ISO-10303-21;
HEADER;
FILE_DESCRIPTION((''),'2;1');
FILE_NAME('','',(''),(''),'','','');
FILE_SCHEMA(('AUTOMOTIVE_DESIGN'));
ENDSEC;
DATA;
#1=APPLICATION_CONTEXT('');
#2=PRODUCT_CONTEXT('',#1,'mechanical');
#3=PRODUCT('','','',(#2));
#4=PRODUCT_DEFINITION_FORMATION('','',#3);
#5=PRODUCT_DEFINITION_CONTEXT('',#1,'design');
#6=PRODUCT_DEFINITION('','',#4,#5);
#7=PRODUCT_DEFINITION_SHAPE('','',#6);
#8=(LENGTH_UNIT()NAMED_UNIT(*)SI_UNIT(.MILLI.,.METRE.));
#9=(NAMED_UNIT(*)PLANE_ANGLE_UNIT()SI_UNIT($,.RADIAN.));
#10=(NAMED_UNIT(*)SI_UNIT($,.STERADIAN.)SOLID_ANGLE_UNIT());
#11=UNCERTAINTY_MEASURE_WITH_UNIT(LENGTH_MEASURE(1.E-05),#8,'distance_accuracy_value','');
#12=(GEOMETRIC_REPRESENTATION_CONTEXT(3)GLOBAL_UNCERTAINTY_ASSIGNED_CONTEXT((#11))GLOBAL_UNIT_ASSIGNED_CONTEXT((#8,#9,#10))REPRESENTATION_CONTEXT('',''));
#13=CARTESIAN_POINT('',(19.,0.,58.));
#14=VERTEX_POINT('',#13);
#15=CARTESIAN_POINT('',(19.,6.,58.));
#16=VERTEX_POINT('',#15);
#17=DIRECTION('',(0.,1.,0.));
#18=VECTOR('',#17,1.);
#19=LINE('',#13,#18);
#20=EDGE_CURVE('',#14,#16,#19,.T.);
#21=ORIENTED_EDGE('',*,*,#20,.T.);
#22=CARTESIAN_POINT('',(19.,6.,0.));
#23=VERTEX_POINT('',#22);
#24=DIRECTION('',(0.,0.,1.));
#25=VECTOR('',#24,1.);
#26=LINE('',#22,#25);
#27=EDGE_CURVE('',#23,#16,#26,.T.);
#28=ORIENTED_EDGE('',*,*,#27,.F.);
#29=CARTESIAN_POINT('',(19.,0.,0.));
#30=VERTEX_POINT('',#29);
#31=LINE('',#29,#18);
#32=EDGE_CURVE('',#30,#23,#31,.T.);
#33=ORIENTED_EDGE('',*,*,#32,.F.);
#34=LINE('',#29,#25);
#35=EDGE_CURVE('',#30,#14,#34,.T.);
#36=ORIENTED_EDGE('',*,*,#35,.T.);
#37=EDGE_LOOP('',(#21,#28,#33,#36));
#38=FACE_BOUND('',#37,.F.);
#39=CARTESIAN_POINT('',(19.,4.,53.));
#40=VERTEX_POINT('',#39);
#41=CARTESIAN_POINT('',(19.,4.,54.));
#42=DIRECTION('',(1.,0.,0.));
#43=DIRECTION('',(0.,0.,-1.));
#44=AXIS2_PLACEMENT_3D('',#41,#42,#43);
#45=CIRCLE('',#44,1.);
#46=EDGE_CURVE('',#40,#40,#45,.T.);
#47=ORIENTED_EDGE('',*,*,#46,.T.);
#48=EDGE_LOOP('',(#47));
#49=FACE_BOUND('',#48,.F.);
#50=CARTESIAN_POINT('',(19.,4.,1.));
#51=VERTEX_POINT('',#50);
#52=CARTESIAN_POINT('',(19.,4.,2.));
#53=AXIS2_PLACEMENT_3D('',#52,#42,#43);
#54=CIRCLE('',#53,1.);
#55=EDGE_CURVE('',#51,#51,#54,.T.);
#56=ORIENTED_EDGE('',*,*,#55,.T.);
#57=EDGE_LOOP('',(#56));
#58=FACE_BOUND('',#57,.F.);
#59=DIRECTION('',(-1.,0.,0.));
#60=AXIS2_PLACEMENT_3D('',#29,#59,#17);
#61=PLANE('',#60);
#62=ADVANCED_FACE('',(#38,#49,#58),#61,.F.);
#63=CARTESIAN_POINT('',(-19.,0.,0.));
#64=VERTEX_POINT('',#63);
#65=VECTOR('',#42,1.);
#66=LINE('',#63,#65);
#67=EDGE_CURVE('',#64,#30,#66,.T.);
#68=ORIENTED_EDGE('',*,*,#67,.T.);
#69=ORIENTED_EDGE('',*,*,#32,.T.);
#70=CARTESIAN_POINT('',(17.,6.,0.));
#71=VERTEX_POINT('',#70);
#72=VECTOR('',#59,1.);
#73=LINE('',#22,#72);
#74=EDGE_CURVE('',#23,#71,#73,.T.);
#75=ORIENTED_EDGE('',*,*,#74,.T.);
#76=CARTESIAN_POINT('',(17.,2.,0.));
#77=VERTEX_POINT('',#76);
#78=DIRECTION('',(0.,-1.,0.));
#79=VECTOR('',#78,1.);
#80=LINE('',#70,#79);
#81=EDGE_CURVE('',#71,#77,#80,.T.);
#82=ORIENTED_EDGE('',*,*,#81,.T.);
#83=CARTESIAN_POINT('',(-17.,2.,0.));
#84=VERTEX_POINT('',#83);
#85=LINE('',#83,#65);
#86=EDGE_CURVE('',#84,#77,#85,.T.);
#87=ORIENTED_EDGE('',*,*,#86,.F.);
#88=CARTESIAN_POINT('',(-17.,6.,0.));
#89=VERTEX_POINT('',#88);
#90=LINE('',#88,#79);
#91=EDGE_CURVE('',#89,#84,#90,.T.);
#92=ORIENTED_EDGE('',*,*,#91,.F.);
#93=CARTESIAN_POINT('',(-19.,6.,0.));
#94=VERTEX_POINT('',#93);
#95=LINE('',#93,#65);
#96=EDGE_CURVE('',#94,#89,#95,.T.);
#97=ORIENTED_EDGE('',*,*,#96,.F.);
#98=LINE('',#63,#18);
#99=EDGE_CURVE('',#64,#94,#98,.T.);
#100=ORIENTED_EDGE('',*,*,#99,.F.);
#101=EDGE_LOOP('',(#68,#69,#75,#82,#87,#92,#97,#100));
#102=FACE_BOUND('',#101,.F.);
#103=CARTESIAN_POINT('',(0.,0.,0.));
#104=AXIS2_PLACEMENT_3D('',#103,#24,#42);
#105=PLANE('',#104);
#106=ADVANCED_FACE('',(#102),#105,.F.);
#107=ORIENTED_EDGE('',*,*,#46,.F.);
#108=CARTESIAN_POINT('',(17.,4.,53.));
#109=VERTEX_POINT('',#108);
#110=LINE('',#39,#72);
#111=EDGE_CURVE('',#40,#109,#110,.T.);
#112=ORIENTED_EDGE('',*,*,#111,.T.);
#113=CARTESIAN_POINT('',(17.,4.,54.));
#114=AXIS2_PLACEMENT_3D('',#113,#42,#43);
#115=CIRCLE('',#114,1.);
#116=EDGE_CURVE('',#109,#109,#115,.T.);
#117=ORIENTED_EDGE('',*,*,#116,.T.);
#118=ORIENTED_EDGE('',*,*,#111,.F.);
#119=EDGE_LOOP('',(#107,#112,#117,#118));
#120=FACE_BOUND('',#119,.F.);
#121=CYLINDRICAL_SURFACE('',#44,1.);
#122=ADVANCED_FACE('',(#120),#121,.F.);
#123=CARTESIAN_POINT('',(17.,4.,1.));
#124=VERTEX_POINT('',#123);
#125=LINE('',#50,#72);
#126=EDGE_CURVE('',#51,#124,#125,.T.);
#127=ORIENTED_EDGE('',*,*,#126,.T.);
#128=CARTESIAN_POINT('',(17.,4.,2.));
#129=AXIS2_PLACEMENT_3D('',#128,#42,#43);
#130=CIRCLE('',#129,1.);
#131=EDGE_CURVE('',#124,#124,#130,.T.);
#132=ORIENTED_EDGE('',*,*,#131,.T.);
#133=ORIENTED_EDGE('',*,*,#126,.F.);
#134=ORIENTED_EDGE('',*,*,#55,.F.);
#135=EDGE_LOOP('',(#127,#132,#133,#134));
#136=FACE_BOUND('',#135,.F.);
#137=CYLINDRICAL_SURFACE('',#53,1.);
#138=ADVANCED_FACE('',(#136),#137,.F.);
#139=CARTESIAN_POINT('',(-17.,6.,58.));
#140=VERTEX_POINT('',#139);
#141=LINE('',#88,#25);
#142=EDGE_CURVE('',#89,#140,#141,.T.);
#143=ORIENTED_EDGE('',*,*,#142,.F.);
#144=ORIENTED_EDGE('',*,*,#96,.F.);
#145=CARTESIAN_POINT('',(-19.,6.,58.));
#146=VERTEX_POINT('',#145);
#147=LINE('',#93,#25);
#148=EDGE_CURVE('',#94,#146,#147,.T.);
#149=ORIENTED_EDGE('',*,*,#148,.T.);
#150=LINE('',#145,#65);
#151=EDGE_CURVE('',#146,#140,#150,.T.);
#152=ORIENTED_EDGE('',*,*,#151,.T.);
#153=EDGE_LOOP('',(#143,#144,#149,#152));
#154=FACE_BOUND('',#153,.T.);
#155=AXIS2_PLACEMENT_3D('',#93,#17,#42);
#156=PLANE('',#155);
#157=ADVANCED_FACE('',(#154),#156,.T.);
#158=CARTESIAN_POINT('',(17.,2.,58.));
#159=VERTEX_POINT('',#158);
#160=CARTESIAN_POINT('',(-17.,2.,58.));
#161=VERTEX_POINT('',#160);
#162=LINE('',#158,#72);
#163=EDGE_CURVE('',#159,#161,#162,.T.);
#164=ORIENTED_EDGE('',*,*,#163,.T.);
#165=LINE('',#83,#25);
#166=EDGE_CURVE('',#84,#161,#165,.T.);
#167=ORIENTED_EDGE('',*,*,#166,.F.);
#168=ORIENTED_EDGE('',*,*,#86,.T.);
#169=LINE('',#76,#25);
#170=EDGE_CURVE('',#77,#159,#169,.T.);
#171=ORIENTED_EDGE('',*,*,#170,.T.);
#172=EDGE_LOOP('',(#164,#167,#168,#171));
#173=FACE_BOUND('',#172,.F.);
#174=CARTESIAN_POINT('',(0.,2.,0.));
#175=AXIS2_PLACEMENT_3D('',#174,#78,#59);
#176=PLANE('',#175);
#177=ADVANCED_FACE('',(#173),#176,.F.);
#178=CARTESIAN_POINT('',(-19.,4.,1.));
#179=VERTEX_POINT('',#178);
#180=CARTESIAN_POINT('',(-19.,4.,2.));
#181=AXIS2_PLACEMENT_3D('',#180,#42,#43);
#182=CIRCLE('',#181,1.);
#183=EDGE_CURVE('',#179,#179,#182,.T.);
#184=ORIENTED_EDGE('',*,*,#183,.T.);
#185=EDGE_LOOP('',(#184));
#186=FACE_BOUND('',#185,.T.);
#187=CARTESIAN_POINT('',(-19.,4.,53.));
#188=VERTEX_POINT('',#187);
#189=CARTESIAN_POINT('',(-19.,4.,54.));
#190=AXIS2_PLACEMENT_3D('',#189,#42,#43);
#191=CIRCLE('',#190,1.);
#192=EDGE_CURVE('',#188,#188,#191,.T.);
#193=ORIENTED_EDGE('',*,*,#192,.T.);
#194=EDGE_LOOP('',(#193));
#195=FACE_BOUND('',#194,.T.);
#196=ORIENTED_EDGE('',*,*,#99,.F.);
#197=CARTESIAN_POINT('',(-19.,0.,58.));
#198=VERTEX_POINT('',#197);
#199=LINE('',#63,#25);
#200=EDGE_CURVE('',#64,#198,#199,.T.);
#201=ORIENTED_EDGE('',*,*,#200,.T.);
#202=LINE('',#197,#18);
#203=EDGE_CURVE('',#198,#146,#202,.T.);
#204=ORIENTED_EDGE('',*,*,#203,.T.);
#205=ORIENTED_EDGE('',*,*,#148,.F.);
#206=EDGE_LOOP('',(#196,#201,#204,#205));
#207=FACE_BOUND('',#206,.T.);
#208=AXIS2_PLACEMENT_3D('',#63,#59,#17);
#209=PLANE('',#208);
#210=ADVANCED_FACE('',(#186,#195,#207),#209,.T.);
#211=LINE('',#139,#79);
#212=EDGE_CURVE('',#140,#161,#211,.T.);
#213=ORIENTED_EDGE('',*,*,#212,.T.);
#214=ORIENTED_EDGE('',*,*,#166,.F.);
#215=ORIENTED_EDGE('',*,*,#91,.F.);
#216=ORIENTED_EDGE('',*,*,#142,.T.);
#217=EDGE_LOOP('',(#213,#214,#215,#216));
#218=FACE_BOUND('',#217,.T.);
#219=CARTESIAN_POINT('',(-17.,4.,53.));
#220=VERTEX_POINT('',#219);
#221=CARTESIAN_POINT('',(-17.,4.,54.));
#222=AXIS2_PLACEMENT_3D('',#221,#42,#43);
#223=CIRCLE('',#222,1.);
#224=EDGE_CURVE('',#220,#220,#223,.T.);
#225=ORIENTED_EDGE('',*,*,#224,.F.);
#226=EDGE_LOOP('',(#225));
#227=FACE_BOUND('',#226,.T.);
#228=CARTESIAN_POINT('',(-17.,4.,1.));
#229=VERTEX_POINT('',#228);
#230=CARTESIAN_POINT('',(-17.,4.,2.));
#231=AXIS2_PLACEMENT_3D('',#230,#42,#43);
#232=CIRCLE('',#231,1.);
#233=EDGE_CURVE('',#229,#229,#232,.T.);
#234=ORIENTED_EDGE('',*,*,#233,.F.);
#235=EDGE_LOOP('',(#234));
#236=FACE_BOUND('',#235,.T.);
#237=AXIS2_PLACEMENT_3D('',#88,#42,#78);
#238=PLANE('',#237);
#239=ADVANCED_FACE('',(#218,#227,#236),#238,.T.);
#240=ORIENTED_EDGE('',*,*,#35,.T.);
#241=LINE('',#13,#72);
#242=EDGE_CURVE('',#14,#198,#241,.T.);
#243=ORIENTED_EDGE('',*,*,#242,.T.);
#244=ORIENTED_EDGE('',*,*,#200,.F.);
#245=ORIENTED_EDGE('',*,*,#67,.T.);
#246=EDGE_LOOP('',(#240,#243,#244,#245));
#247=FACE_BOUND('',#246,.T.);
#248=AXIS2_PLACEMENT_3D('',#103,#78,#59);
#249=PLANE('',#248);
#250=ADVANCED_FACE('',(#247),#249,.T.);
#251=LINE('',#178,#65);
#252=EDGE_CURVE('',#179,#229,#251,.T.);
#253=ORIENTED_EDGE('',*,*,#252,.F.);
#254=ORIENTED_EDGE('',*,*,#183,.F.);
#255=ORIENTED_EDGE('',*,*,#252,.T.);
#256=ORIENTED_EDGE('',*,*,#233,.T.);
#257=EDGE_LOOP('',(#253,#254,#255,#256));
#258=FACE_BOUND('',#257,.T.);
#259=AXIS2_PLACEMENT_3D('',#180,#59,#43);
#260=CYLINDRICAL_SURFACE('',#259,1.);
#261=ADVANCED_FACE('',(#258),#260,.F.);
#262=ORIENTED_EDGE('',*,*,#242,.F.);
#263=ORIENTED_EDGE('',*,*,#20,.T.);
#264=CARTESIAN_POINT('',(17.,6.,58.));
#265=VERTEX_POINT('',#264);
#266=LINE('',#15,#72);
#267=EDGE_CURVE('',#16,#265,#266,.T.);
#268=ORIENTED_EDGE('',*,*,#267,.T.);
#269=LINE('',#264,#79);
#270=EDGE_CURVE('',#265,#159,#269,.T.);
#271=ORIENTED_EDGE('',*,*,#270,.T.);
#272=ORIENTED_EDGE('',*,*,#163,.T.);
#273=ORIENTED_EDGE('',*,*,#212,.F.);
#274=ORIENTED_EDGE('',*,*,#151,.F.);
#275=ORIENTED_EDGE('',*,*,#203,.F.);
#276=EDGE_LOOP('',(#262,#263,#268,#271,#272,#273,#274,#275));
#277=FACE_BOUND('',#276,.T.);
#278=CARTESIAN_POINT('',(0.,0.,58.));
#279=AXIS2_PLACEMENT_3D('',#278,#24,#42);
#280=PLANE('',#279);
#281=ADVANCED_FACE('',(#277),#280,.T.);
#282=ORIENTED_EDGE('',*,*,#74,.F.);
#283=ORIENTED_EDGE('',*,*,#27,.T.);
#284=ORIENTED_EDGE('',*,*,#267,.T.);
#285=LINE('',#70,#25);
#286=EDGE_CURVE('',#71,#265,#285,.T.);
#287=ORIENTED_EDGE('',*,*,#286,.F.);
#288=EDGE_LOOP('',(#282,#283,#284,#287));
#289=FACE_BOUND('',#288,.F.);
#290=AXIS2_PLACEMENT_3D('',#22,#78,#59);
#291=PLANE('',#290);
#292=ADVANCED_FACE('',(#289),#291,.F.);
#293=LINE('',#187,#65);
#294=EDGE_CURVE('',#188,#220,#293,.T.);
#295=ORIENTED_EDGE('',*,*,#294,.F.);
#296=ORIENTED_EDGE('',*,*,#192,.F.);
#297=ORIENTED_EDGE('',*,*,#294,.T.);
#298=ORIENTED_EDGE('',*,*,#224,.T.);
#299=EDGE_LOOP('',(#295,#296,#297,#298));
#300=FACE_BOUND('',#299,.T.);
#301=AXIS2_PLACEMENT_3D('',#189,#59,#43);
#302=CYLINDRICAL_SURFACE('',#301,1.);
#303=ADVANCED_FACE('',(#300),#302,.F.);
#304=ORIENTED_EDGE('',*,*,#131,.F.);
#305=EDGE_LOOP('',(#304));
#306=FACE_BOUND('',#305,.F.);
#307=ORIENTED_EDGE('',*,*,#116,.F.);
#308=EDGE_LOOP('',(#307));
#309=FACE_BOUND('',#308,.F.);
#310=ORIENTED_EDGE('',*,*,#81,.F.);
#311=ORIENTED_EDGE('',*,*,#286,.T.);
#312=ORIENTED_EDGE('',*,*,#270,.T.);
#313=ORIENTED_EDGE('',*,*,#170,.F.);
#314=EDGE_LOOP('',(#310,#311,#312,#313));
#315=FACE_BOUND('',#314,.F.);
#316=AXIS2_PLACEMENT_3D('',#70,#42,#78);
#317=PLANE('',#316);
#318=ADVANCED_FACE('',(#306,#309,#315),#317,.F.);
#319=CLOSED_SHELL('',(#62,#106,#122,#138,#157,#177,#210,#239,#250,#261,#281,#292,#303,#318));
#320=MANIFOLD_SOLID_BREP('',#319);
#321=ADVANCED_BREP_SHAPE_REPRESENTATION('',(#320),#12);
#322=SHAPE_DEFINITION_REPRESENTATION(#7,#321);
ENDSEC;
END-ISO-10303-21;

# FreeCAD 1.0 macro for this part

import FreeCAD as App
import Part
import Sketcher

V = App.Vector

doc = App.newDocument("Part")
params = doc.addObject("Spreadsheet::Sheet", "Params")
for row, (alias, value) in enumerate([
    ("sketch1_width", "2 mm"),
    ("sketch1_height", "6 mm"),
    ("pad1_length", "58 mm"),
    ("sketch2_diameter", "2 mm"),
    ("pocket1_length", "2 mm"),
], start=1):
    params.set(f"A{row}", alias)
    params.set(f"B{row}", "=" + value)
    params.setAlias(f"B{row}", alias)

body = doc.addObject("PartDesign::Body", "Body")

# Sketch on XY plane
sketch1 = body.newObject("Sketcher::SketchObject", "Sketch")
sketch1.AttachmentSupport = (doc.getObject("XY_Plane"), [""])
sketch1.MapMode = "FlatFace"
sketch1.addGeometry([
    Part.LineSegment(V(-19, 0, 0), V(19, 0, 0)),  # 0
    Part.LineSegment(V(19, 0, 0), V(19, 6, 0)),  # 1
    Part.LineSegment(V(19, 6, 0), V(17, 6, 0)),  # 2
    Part.LineSegment(V(17, 6, 0), V(17, 2, 0)),  # 3
    Part.LineSegment(V(17, 2, 0), V(-17, 2, 0)),  # 4
    Part.LineSegment(V(-17, 2, 0), V(-17, 6, 0)),  # 5
    Part.LineSegment(V(-17, 6, 0), V(-19, 6, 0)),  # 6
    Part.LineSegment(V(-19, 6, 0), V(-19, 0, 0)),  # 7
], False)
sketch1.addConstraint([
    Sketcher.Constraint("Coincident", 0, 2, 1, 1),
    Sketcher.Constraint("Coincident", 1, 2, 2, 1),
    Sketcher.Constraint("Coincident", 2, 2, 3, 1),
    Sketcher.Constraint("Coincident", 3, 2, 4, 1),
    Sketcher.Constraint("Coincident", 4, 2, 5, 1),
    Sketcher.Constraint("Coincident", 5, 2, 6, 1),
    Sketcher.Constraint("Coincident", 6, 2, 7, 1),
    Sketcher.Constraint("Coincident", 7, 2, 0, 1),
    Sketcher.Constraint("Horizontal", 0),
    Sketcher.Constraint("Vertical", 1),
    Sketcher.Constraint("Horizontal", 2),
    Sketcher.Constraint("Vertical", 3),
    Sketcher.Constraint("Horizontal", 4),
    Sketcher.Constraint("Vertical", 5),
    Sketcher.Constraint("Horizontal", 6),
    Sketcher.Constraint("Vertical", 7),
    Sketcher.Constraint("Symmetric", 0, 2, 7, 2, -1, 1),
    Sketcher.Constraint("Symmetric", 2, 2, 5, 2, -2),
    Sketcher.Constraint("DistanceX", 2, 2, 2, 1, 2.0),
    Sketcher.Constraint("DistanceY", 1, 1, 1, 2, 6.0),
    Sketcher.Constraint("DistanceX", -1, 1, 0, 2, 19.0),
    Sketcher.Constraint("DistanceY", -1, 1, 3, 2, 2.0),
])
sketch1.setExpression("Constraints[18]", "Params.sketch1_width")
sketch1.setExpression("Constraints[19]", "Params.sketch1_height")
pad1 = body.newObject("PartDesign::Pad", "Pad")
pad1.Profile = sketch1
pad1.setExpression("Length", "Params.pad1_length")

# Sketch on YZ plane
sketch2 = body.newObject("Sketcher::SketchObject", "Sketch001")
sketch2.AttachmentSupport = (doc.getObject("YZ_Plane"), [""])
sketch2.MapMode = "FlatFace"
sketch2.AttachmentOffset = App.Placement(V(0, 0, 19), App.Rotation())
sketch2.addGeometry([
    Part.Circle(V(4, 54, 0), V(0, 0, 1), 1),
    Part.Circle(V(4, 2, 0), V(0, 0, 1), 1),
], False)
sketch2.addConstraint([
    Sketcher.Constraint("Equal", 0, 1),
    Sketcher.Constraint("Vertical", 0, 3, 1, 3),
    Sketcher.Constraint("Diameter", 0, 2.0),
    Sketcher.Constraint("DistanceX", -1, 1, 0, 3, 4.0),
    Sketcher.Constraint("DistanceY", -1, 1, 1, 3, 2.0),
    Sketcher.Constraint("DistanceY", -1, 1, 0, 3, 54.0),
])
sketch2.setExpression("Constraints[2]", "Params.sketch2_diameter")
pocket1 = body.newObject("PartDesign::Pocket", "Pocket")
pocket1.Profile = sketch2
pocket1.setExpression("Length", "Params.pocket1_length")
doc.recompute()

mirrored = body.newObject("PartDesign::Mirrored", "Mirrored")
mirrored.Originals = [pocket1]
mirrored.MirrorPlane = (doc.getObject("YZ_Plane"), [""])
body.Tip = mirrored

doc.recompute()
